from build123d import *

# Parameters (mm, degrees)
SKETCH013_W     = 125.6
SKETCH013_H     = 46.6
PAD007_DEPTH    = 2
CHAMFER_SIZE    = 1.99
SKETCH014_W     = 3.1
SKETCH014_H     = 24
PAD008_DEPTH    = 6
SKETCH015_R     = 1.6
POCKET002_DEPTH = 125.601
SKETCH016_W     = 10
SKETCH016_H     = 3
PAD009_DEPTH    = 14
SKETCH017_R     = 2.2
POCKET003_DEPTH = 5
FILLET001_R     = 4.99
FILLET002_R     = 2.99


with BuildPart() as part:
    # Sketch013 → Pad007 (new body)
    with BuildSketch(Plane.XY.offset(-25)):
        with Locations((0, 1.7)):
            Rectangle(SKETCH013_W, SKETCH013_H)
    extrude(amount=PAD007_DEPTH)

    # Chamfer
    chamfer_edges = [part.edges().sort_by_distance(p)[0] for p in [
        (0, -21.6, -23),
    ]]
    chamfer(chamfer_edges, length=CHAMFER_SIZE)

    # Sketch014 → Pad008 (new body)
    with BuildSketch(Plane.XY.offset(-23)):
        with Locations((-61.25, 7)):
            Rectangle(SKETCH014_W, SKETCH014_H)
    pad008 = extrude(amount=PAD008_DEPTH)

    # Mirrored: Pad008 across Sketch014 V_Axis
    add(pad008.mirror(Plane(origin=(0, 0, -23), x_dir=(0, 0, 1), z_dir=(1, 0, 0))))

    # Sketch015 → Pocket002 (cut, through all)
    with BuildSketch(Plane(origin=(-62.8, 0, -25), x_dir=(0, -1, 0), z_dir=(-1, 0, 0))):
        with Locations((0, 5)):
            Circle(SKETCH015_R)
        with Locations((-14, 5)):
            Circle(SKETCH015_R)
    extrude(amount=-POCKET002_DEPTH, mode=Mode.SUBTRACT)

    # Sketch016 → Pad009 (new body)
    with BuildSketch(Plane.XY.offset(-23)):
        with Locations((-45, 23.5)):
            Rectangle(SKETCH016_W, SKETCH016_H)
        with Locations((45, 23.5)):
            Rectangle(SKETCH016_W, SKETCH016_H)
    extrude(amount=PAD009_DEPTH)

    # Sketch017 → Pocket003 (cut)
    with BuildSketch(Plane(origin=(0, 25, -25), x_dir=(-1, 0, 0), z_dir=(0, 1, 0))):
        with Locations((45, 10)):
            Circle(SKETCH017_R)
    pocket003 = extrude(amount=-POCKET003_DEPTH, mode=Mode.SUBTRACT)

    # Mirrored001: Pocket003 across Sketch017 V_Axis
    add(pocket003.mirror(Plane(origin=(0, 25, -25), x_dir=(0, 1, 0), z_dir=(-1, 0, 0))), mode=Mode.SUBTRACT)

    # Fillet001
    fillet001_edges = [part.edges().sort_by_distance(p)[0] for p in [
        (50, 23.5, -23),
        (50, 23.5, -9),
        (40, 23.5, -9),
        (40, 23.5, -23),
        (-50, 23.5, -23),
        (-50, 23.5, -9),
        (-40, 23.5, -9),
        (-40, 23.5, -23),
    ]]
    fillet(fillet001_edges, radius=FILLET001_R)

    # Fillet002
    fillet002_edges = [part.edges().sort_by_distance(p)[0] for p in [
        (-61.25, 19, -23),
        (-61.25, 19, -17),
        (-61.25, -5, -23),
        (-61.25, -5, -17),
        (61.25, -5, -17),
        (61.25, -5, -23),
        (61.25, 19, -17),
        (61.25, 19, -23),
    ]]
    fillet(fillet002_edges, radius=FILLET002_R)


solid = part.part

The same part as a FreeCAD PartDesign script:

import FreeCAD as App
import Part
import Sketcher
from FreeCAD import Vector


def edges_at(feature, points):
    """Names of the edges that pass closest to the given points."""
    edges = feature.Shape.Edges
    near = lambda p: min(range(len(edges)), key=lambda i: edges[i].distToShape(Part.Vertex(*p))[0])
    return sorted({f"Edge{near(p) + 1}" for p in points})

doc = App.newDocument("Part")
body = doc.addObject("PartDesign::Body", "Body")

sketch1 = body.newObject("Sketcher::SketchObject", "Sketch")
sketch1.AttachmentSupport = (doc.getObject("XY_Plane"), [""])
sketch1.MapMode = "FlatFace"
sketch1.AttachmentOffset = App.Placement(Vector(0, 0, -25), App.Rotation())
sketch1.addGeometry(Part.LineSegment(Vector(-63, 25, 0), Vector(-63, -22, 0)), False)
sketch1.addGeometry(Part.LineSegment(Vector(-63, -22, 0), Vector(63, -22, 0)), False)
sketch1.addGeometry(Part.LineSegment(Vector(63, -22, 0), Vector(63, 25, 0)), False)
sketch1.addGeometry(Part.LineSegment(Vector(63, 25, 0), Vector(-63, 25, 0)), False)
sketch1.addConstraint(Sketcher.Constraint("Coincident", 0, 2, 1, 1))
sketch1.addConstraint(Sketcher.Constraint("Coincident", 1, 2, 2, 1))
sketch1.addConstraint(Sketcher.Constraint("Coincident", 2, 2, 3, 1))
sketch1.addConstraint(Sketcher.Constraint("Coincident", 3, 2, 0, 1))
sketch1.addConstraint(Sketcher.Constraint("Vertical", 0))
sketch1.addConstraint(Sketcher.Constraint("Horizontal", 1))
sketch1.addConstraint(Sketcher.Constraint("Vertical", 2))
sketch1.addConstraint(Sketcher.Constraint("Horizontal", 3))
sketch1.addConstraint(Sketcher.Constraint("DistanceX", 1, 1, 1, 2, 125.6))
sketch1.addConstraint(Sketcher.Constraint("DistanceY", 0, 2, 0, 1, 46.6))
sketch1.addConstraint(Sketcher.Constraint("DistanceY", -1, 1, 2, 2, 25.0))
sketch1.addConstraint(Sketcher.Constraint("DistanceX", 0, 2, -1, 1, 62.8))
pad1 = body.newObject("PartDesign::Pad", "Pad")
pad1.Profile = sketch1
pad1.Length = 2
doc.recompute()

chamfer = body.newObject("PartDesign::Chamfer", "Chamfer")
chamfer.Base = (pad1, edges_at(pad1, [(0, -21.6, -23)]))
chamfer.Size = 1.99

sketch2 = body.newObject("Sketcher::SketchObject", "Sketch001")
sketch2.AttachmentSupport = (doc.getObject("XY_Plane"), [""])
sketch2.MapMode = "FlatFace"
sketch2.AttachmentOffset = App.Placement(Vector(0, 0, -23), App.Rotation())
sketch2.addGeometry(Part.LineSegment(Vector(-62.8, 19, 0), Vector(-62.8, -5, 0)), False)
sketch2.addGeometry(Part.LineSegment(Vector(-62.8, -5, 0), Vector(-59.7, -5, 0)), False)
sketch2.addGeometry(Part.LineSegment(Vector(-59.7, -5, 0), Vector(-59.7, 19, 0)), False)
sketch2.addGeometry(Part.LineSegment(Vector(-59.7, 19, 0), Vector(-62.8, 19, 0)), False)
sketch2.addConstraint(Sketcher.Constraint("Coincident", 0, 2, 1, 1))
sketch2.addConstraint(Sketcher.Constraint("Coincident", 1, 2, 2, 1))
sketch2.addConstraint(Sketcher.Constraint("Coincident", 2, 2, 3, 1))
sketch2.addConstraint(Sketcher.Constraint("Coincident", 3, 2, 0, 1))
sketch2.addConstraint(Sketcher.Constraint("Vertical", 0))
sketch2.addConstraint(Sketcher.Constraint("Horizontal", 1))
sketch2.addConstraint(Sketcher.Constraint("Vertical", 2))
sketch2.addConstraint(Sketcher.Constraint("Horizontal", 3))
sketch2.addConstraint(Sketcher.Constraint("DistanceY", 0, 2, 0, 1, 24.0))
sketch2.addConstraint(Sketcher.Constraint("DistanceX", 1, 1, 1, 2, 3.1))
sketch2.addConstraint(Sketcher.Constraint("DistanceY", 0, 2, -1, 1, 5.0))
sketch2.addConstraint(Sketcher.Constraint("DistanceX", 0, 2, -1, 1, 62.8))
pad2 = body.newObject("PartDesign::Pad", "Pad001")
pad2.Profile = sketch2
pad2.Length = 6
doc.recompute()

mirrored = body.newObject("PartDesign::Mirrored", "Mirrored")
mirrored.Originals = [pad2]
mirrored.MirrorPlane = (doc.getObject("YZ_Plane"), [""])
body.Tip = mirrored

sketch3 = body.newObject("Sketcher::SketchObject", "Sketch002")
sketch3.AttachmentSupport = (doc.getObject("YZ_Plane"), [""])
sketch3.MapMode = "FlatFace"
sketch3.AttachmentOffset = App.Placement(Vector(0, 0, -62.8), App.Rotation())
sketch3.addGeometry(Part.Circle(Vector(0, -20, 0), Vector(0, 0, 1), 1.6), False)
sketch3.addGeometry(Part.Circle(Vector(14, -20, 0), Vector(0, 0, 1), 1.6), False)
sketch3.addConstraint(Sketcher.Constraint("Equal", 0, 1))
sketch3.addConstraint(Sketcher.Constraint("PointOnObject", 0, 3, -2))
sketch3.addConstraint(Sketcher.Constraint("Horizontal", 0, 3, 1, 3))
sketch3.addConstraint(Sketcher.Constraint("Diameter", 0, 3.2))
sketch3.addConstraint(Sketcher.Constraint("DistanceY", 0, 3, -1, 1, 20.0))
sketch3.addConstraint(Sketcher.Constraint("DistanceX", -1, 1, 1, 3, 14.0))
pocket1 = body.newObject("PartDesign::Pocket", "Pocket")
pocket1.Profile = sketch3
pocket1.Type = "ThroughAll"
pocket1.Reversed = True

sketch4 = body.newObject("Sketcher::SketchObject", "Sketch003")
sketch4.AttachmentSupport = (doc.getObject("XY_Plane"), [""])
sketch4.MapMode = "FlatFace"
sketch4.AttachmentOffset = App.Placement(Vector(0, 0, -23), App.Rotation())
sketch4.addGeometry(Part.LineSegment(Vector(-50, 25, 0), Vector(-50, 22, 0)), False)
sketch4.addGeometry(Part.LineSegment(Vector(-50, 22, 0), Vector(-40, 22, 0)), False)
sketch4.addGeometry(Part.LineSegment(Vector(-40, 22, 0), Vector(-40, 25, 0)), False)
sketch4.addGeometry(Part.LineSegment(Vector(-40, 25, 0), Vector(-50, 25, 0)), False)
sketch4.addGeometry(Part.LineSegment(Vector(40, 25, 0), Vector(40, 22, 0)), False)
sketch4.addGeometry(Part.LineSegment(Vector(40, 22, 0), Vector(50, 22, 0)), False)
sketch4.addGeometry(Part.LineSegment(Vector(50, 22, 0), Vector(50, 25, 0)), False)
sketch4.addGeometry(Part.LineSegment(Vector(50, 25, 0), Vector(40, 25, 0)), False)
sketch4.addConstraint(Sketcher.Constraint("Coincident", 0, 2, 1, 1))
sketch4.addConstraint(Sketcher.Constraint("Coincident", 1, 2, 2, 1))
sketch4.addConstraint(Sketcher.Constraint("Coincident", 2, 2, 3, 1))
sketch4.addConstraint(Sketcher.Constraint("Coincident", 3, 2, 0, 1))
sketch4.addConstraint(Sketcher.Constraint("Coincident", 4, 2, 5, 1))
sketch4.addConstraint(Sketcher.Constraint("Coincident", 5, 2, 6, 1))
sketch4.addConstraint(Sketcher.Constraint("Coincident", 6, 2, 7, 1))
sketch4.addConstraint(Sketcher.Constraint("Coincident", 7, 2, 4, 1))
sketch4.addConstraint(Sketcher.Constraint("Vertical", 0))
sketch4.addConstraint(Sketcher.Constraint("Horizontal", 1))
sketch4.addConstraint(Sketcher.Constraint("Vertical", 2))
sketch4.addConstraint(Sketcher.Constraint("Horizontal", 3))
sketch4.addConstraint(Sketcher.Constraint("Vertical", 4))
sketch4.addConstraint(Sketcher.Constraint("Horizontal", 5))
sketch4.addConstraint(Sketcher.Constraint("Vertical", 6))
sketch4.addConstraint(Sketcher.Constraint("Horizontal", 7))
sketch4.addConstraint(Sketcher.Constraint("Symmetric", 1, 2, 4, 2, -2))
sketch4.addConstraint(Sketcher.Constraint("Symmetric", 3, 2, 6, 2, -2))
sketch4.addConstraint(Sketcher.Constraint("DistanceX", 1, 1, 1, 2, 10.0))
sketch4.addConstraint(Sketcher.Constraint("DistanceY", 0, 2, 0, 1, 3.0))
sketch4.addConstraint(Sketcher.Constraint("DistanceX", 0, 2, -1, 1, 50.0))
sketch4.addConstraint(Sketcher.Constraint("DistanceY", -1, 1, 0, 2, 22.0))
pad3 = body.newObject("PartDesign::Pad", "Pad002")
pad3.Profile = sketch4
pad3.Length = 14

sketch5 = body.newObject("Sketcher::SketchObject", "Sketch004")
sketch5.AttachmentSupport = (doc.getObject("XZ_Plane"), [""])
sketch5.MapMode = "FlatFace"
sketch5.AttachmentOffset = App.Placement(Vector(0, 0, -25), App.Rotation())
sketch5.addGeometry(Part.Circle(Vector(-45, -15, 0), Vector(0, 0, 1), 2.2), False)
sketch5.addConstraint(Sketcher.Constraint("Diameter", 0, 4.4))
sketch5.addConstraint(Sketcher.Constraint("DistanceX", 0, 3, -1, 1, 45.0))
sketch5.addConstraint(Sketcher.Constraint("DistanceY", 0, 3, -1, 1, 15.0))
pocket2 = body.newObject("PartDesign::Pocket", "Pocket001")
pocket2.Profile = sketch5
pocket2.Length = 5
pocket2.Reversed = True
doc.recompute()

mirrored2 = body.newObject("PartDesign::Mirrored", "Mirrored001")
mirrored2.Originals = [pocket2]
mirrored2.MirrorPlane = (doc.getObject("YZ_Plane"), [""])
body.Tip = mirrored2
doc.recompute()

fillet = body.newObject("PartDesign::Fillet", "Fillet")
fillet.Base = (mirrored2, edges_at(mirrored2, [
    (50, 23.5, -23),
    (50, 23.5, -9),
    (40, 23.5, -9),
    (40, 23.5, -23),
    (-50, 23.5, -23),
    (-50, 23.5, -9),
    (-40, 23.5, -9),
    (-40, 23.5, -23),
]))
fillet.Radius = 4.99
doc.recompute()

fillet2 = body.newObject("PartDesign::Fillet", "Fillet001")
fillet2.Base = (fillet, edges_at(fillet, [
    (-61.25, 19, -23),
    (-61.25, 19, -17),
    (-61.25, -5, -23),
    (-61.25, -5, -17),
    (61.25, -5, -17),
    (61.25, -5, -23),
    (61.25, 19, -17),
    (61.25, 19, -23),
]))
fillet2.Radius = 2.99

doc.recompute()
